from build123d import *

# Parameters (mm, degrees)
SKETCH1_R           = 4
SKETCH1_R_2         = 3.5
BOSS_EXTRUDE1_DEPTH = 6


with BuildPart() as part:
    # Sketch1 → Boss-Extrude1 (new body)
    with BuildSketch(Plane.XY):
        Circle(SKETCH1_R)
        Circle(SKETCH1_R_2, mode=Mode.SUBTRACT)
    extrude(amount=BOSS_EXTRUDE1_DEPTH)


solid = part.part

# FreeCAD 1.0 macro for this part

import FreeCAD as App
import Part
import Sketcher

V = App.Vector

doc = App.newDocument("Part")
body = doc.addObject("PartDesign::Body", "Body")

# Sketch on XY plane
sketch1 = doc.addObject("Sketcher::SketchObject", "Sketch")
body.addObject(sketch1)
sketch1.AttachmentSupport = (doc.XY_Plane, [""])
sketch1.MapMode = "FlatFace"
sketch1.addGeometry(Part.Circle(V(0, 0, 0), V(0, 0, 1), 4), False)
sketch1.addGeometry(Part.Circle(V(0, 0, 0), V(0, 0, 1), 3.5), False)
sketch1.addConstraint(Sketcher.Constraint("Coincident", 0, 3, -1, 1))
sketch1.addConstraint(Sketcher.Constraint("Coincident", 1, 3, -1, 1))
sketch1.addConstraint(Sketcher.Constraint("Diameter", 0, 8.0))
sketch1.addConstraint(Sketcher.Constraint("Diameter", 1, 7.0))
pad1 = doc.addObject("PartDesign::Pad", "Pad")
body.addObject(pad1)
pad1.Profile = sketch1
pad1.Length = 6

doc.recompute()
